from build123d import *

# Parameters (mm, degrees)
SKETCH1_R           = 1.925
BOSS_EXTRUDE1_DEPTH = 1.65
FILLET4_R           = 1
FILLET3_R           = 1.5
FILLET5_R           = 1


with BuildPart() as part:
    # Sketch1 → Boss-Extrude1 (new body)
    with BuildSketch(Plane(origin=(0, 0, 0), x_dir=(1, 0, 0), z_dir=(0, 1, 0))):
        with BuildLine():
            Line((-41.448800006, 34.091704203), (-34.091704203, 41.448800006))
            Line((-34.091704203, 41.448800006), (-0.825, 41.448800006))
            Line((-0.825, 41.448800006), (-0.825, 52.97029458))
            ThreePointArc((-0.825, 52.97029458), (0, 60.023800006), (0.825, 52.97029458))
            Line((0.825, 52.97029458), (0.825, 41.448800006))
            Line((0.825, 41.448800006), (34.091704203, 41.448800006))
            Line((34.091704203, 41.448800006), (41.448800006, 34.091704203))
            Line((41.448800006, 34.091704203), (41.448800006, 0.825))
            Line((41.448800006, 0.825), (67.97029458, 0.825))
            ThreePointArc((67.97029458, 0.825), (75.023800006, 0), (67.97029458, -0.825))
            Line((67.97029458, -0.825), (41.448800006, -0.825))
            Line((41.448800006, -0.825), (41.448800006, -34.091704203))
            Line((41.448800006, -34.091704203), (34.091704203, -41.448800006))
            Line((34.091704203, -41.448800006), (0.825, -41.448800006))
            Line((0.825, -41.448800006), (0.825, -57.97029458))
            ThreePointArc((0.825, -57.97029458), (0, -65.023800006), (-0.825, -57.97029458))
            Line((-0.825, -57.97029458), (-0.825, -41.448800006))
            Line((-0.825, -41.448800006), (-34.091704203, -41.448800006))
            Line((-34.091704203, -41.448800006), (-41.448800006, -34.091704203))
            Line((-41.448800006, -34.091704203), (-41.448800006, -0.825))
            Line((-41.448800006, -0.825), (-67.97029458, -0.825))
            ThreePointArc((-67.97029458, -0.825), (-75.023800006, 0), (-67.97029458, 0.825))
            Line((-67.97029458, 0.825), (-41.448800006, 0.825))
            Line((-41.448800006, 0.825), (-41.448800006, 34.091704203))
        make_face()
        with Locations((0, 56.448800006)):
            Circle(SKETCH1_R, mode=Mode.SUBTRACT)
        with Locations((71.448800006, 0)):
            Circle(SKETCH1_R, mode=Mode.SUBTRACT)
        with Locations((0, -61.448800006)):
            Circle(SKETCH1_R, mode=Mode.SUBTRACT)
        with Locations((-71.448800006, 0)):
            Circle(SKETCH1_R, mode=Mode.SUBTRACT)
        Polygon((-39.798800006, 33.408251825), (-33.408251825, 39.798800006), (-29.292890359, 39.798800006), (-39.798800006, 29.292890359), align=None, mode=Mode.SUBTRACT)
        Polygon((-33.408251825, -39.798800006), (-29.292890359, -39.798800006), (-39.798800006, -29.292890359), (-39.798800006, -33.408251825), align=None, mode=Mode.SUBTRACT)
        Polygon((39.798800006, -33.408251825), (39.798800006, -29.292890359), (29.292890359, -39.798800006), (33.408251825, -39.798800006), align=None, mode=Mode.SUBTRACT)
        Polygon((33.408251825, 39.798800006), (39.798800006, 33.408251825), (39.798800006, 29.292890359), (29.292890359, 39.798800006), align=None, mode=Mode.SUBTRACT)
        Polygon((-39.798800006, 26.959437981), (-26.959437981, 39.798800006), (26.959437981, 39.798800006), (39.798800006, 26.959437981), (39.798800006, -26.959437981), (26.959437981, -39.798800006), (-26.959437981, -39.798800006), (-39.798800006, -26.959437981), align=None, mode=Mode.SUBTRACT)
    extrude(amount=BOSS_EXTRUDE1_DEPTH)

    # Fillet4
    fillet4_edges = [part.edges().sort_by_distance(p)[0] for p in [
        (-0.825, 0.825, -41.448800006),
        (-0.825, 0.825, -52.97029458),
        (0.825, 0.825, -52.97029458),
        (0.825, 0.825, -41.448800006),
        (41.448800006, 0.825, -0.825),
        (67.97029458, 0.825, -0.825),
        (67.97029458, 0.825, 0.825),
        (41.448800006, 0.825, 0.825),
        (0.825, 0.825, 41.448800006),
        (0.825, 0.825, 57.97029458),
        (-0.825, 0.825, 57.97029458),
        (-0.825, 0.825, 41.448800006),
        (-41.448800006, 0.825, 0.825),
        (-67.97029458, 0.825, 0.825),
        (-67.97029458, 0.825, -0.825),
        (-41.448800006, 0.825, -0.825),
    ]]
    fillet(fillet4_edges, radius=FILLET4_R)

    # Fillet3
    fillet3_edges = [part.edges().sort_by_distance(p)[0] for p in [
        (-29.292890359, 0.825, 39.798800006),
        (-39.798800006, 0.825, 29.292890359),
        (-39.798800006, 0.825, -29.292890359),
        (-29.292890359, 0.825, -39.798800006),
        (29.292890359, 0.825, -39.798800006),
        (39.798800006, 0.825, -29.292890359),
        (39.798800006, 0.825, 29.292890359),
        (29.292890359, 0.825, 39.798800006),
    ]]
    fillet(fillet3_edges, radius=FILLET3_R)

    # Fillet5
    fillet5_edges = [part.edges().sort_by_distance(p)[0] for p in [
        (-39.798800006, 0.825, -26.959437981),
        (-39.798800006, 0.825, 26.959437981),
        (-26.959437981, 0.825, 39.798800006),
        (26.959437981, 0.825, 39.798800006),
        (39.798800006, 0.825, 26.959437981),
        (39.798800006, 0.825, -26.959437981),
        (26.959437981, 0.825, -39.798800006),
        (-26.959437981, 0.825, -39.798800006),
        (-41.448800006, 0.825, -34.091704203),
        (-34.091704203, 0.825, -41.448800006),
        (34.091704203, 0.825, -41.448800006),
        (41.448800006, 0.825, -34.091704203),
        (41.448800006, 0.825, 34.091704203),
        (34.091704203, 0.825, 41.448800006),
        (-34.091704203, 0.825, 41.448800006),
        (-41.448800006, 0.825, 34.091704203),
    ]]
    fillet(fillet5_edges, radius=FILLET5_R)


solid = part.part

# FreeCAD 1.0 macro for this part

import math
import FreeCAD as App
import Part
import Sketcher

V = App.Vector


def edges_at(feature, points):
    """Names of the edges that pass closest to the given points."""
    edges = feature.Shape.Edges
    near = lambda p: min(range(len(edges)), key=lambda i: edges[i].distToShape(Part.Vertex(*p))[0])
    return sorted({f"Edge{near(p) + 1}" for p in points})

doc = App.newDocument("Part")
params = doc.addObject("Spreadsheet::Sheet", "Params")
for row, (alias, value) in enumerate([
    ("sketch1_diameter", "3.85 mm"),
    ("pad1_length", "1.65 mm"),
    ("fillet_radius", "1 mm"),
    ("fillet2_radius", "1.5 mm"),
    ("fillet3_radius", "1 mm"),
], start=1):
    params.set(f"A{row}", alias)
    params.set(f"B{row}", "=" + value)
    params.setAlias(f"B{row}", alias)

body = doc.addObject("PartDesign::Body", "Body")

# Sketch on XZ plane
sketch1 = body.newObject("Sketcher::SketchObject", "Sketch")
sketch1.AttachmentSupport = (doc.getObject("XZ_Plane"), [""])
sketch1.MapMode = "FlatFace"
sketch1.addGeometry([
    Part.LineSegment(V(-34.1, -41.4, 0), V(-41.4, -34.1, 0)),  # 0
    Part.LineSegment(V(-41.4, -34.1, 0), V(-41.4, -0.8, 0)),  # 1
    Part.LineSegment(V(-41.4, -0.8, 0), V(-68, -0.8, 0)),  # 2
    Part.ArcOfCircle(Part.Circle(V(-71.4, 0, 0), V(0, 0, 1), 3.6), math.radians(13), math.radians(347)),  # 3
    Part.LineSegment(V(-68, 0.8, 0), V(-41.4, 0.8, 0)),  # 4
    Part.LineSegment(V(-41.4, 0.8, 0), V(-41.4, 34.1, 0)),  # 5
    Part.LineSegment(V(-41.4, 34.1, 0), V(-34.1, 41.4, 0)),  # 6
    Part.LineSegment(V(-34.1, 41.4, 0), V(-0.8, 41.4, 0)),  # 7
    Part.LineSegment(V(-0.8, 41.4, 0), V(-0.8, 58, 0)),  # 8
    Part.ArcOfCircle(Part.Circle(V(0, 61.4, 0), V(0, 0, 1), 3.6), math.radians(-77), math.radians(257)),  # 9
    Part.LineSegment(V(0.8, 58, 0), V(0.8, 41.4, 0)),  # 10
    Part.LineSegment(V(0.8, 41.4, 0), V(34.1, 41.4, 0)),  # 11
    Part.LineSegment(V(34.1, 41.4, 0), V(41.4, 34.1, 0)),  # 12
    Part.LineSegment(V(41.4, 34.1, 0), V(41.4, 0.8, 0)),  # 13
    Part.LineSegment(V(41.4, 0.8, 0), V(68, 0.8, 0)),  # 14
    Part.ArcOfCircle(Part.Circle(V(71.4, 0, 0), V(0, 0, 1), 3.6), math.radians(-167), math.radians(167)),  # 15
    Part.LineSegment(V(68, -0.8, 0), V(41.4, -0.8, 0)),  # 16
    Part.LineSegment(V(41.4, -0.8, 0), V(41.4, -34.1, 0)),  # 17
    Part.LineSegment(V(41.4, -34.1, 0), V(34.1, -41.4, 0)),  # 18
    Part.LineSegment(V(34.1, -41.4, 0), V(0.8, -41.4, 0)),  # 19
    Part.LineSegment(V(0.8, -41.4, 0), V(0.8, -53, 0)),  # 20
    Part.ArcOfCircle(Part.Circle(V(0, -56.4, 0), V(0, 0, 1), 3.6), math.radians(103), math.radians(437)),  # 21
    Part.LineSegment(V(-0.8, -53, 0), V(-0.8, -41.4, 0)),  # 22
    Part.LineSegment(V(-0.8, -41.4, 0), V(-34.1, -41.4, 0)),  # 23
    Part.Circle(V(0, 61.4, 0), V(0, 0, 1), 1.9),  # 24
    Part.LineSegment(V(39.8, 33.4, 0), V(33.4, 39.8, 0)),  # 25
    Part.LineSegment(V(33.4, 39.8, 0), V(29.3, 39.8, 0)),  # 26
    Part.LineSegment(V(29.3, 39.8, 0), V(39.8, 29.3, 0)),  # 27
    Part.LineSegment(V(39.8, 29.3, 0), V(39.8, 33.4, 0)),  # 28
    Part.LineSegment(V(-33.4, 39.8, 0), V(-39.8, 33.4, 0)),  # 29
    Part.LineSegment(V(-39.8, 33.4, 0), V(-39.8, 29.3, 0)),  # 30
    Part.LineSegment(V(-39.8, 29.3, 0), V(-29.3, 39.8, 0)),  # 31
    Part.LineSegment(V(-29.3, 39.8, 0), V(-33.4, 39.8, 0)),  # 32
    Part.Circle(V(71.4, 0, 0), V(0, 0, 1), 1.9),  # 33
    Part.LineSegment(V(-39.8, -27, 0), V(-27, -39.8, 0)),  # 34
    Part.LineSegment(V(-27, -39.8, 0), V(27, -39.8, 0)),  # 35
    Part.LineSegment(V(27, -39.8, 0), V(39.8, -27, 0)),  # 36
    Part.LineSegment(V(39.8, -27, 0), V(39.8, 27, 0)),  # 37
    Part.LineSegment(V(39.8, 27, 0), V(27, 39.8, 0)),  # 38
    Part.LineSegment(V(27, 39.8, 0), V(-27, 39.8, 0)),  # 39
    Part.LineSegment(V(-27, 39.8, 0), V(-39.8, 27, 0)),  # 40
    Part.LineSegment(V(-39.8, 27, 0), V(-39.8, -27, 0)),  # 41
    Part.LineSegment(V(33.4, -39.8, 0), V(39.8, -33.4, 0)),  # 42
    Part.LineSegment(V(39.8, -33.4, 0), V(39.8, -29.3, 0)),  # 43
    Part.LineSegment(V(39.8, -29.3, 0), V(29.3, -39.8, 0)),  # 44
    Part.LineSegment(V(29.3, -39.8, 0), V(33.4, -39.8, 0)),  # 45
    Part.Circle(V(0, -56.4, 0), V(0, 0, 1), 1.9),  # 46
    Part.Circle(V(-71.4, 0, 0), V(0, 0, 1), 1.9),  # 47
    Part.LineSegment(V(-39.8, -33.4, 0), V(-33.4, -39.8, 0)),  # 48
    Part.LineSegment(V(-33.4, -39.8, 0), V(-29.3, -39.8, 0)),  # 49
    Part.LineSegment(V(-29.3, -39.8, 0), V(-39.8, -29.3, 0)),  # 50
    Part.LineSegment(V(-39.8, -29.3, 0), V(-39.8, -33.4, 0)),  # 51
], False)
sketch1.addConstraint([
    Sketcher.Constraint("Coincident", 0, 2, 1, 1),
    Sketcher.Constraint("Coincident", 1, 2, 2, 1),
    Sketcher.Constraint("Coincident", 2, 2, 3, 2),
    Sketcher.Constraint("Coincident", 3, 1, 4, 1),
    Sketcher.Constraint("Coincident", 4, 2, 5, 1),
    Sketcher.Constraint("Coincident", 5, 2, 6, 1),
    Sketcher.Constraint("Coincident", 6, 2, 7, 1),
    Sketcher.Constraint("Coincident", 7, 2, 8, 1),
    Sketcher.Constraint("Coincident", 8, 2, 9, 2),
    Sketcher.Constraint("Coincident", 9, 1, 10, 1),
    Sketcher.Constraint("Coincident", 10, 2, 11, 1),
    Sketcher.Constraint("Coincident", 11, 2, 12, 1),
    Sketcher.Constraint("Coincident", 12, 2, 13, 1),
    Sketcher.Constraint("Coincident", 13, 2, 14, 1),
    Sketcher.Constraint("Coincident", 14, 2, 15, 2),
    Sketcher.Constraint("Coincident", 15, 1, 16, 1),
    Sketcher.Constraint("Coincident", 16, 2, 17, 1),
    Sketcher.Constraint("Coincident", 17, 2, 18, 1),
    Sketcher.Constraint("Coincident", 18, 2, 19, 1),
    Sketcher.Constraint("Coincident", 19, 2, 20, 1),
    Sketcher.Constraint("Coincident", 20, 2, 21, 2),
    Sketcher.Constraint("Coincident", 21, 1, 22, 1),
    Sketcher.Constraint("Coincident", 22, 2, 23, 1),
    Sketcher.Constraint("Coincident", 23, 2, 0, 1),
    Sketcher.Constraint("Coincident", 25, 2, 26, 1),
    Sketcher.Constraint("Coincident", 26, 2, 27, 1),
    Sketcher.Constraint("Coincident", 27, 2, 28, 1),
    Sketcher.Constraint("Coincident", 28, 2, 25, 1),
    Sketcher.Constraint("Coincident", 29, 2, 30, 1),
    Sketcher.Constraint("Coincident", 30, 2, 31, 1),
    Sketcher.Constraint("Coincident", 31, 2, 32, 1),
    Sketcher.Constraint("Coincident", 32, 2, 29, 1),
    Sketcher.Constraint("Coincident", 34, 2, 35, 1),
    Sketcher.Constraint("Coincident", 35, 2, 36, 1),
    Sketcher.Constraint("Coincident", 36, 2, 37, 1),
    Sketcher.Constraint("Coincident", 37, 2, 38, 1),
    Sketcher.Constraint("Coincident", 38, 2, 39, 1),
    Sketcher.Constraint("Coincident", 39, 2, 40, 1),
    Sketcher.Constraint("Coincident", 40, 2, 41, 1),
    Sketcher.Constraint("Coincident", 41, 2, 34, 1),
    Sketcher.Constraint("Coincident", 42, 2, 43, 1),
    Sketcher.Constraint("Coincident", 43, 2, 44, 1),
    Sketcher.Constraint("Coincident", 44, 2, 45, 1),
    Sketcher.Constraint("Coincident", 45, 2, 42, 1),
    Sketcher.Constraint("Coincident", 48, 2, 49, 1),
    Sketcher.Constraint("Coincident", 49, 2, 50, 1),
    Sketcher.Constraint("Coincident", 50, 2, 51, 1),
    Sketcher.Constraint("Coincident", 51, 2, 48, 1),
    Sketcher.Constraint("Vertical", 1),
    Sketcher.Constraint("Horizontal", 2),
    Sketcher.Constraint("Horizontal", 4),
    Sketcher.Constraint("Vertical", 5),
    Sketcher.Constraint("Horizontal", 7),
    Sketcher.Constraint("Vertical", 8),
    Sketcher.Constraint("Vertical", 10),
    Sketcher.Constraint("Horizontal", 11),
    Sketcher.Constraint("Vertical", 13),
    Sketcher.Constraint("Horizontal", 14),
    Sketcher.Constraint("Horizontal", 16),
    Sketcher.Constraint("Vertical", 17),
    Sketcher.Constraint("Horizontal", 19),
    Sketcher.Constraint("Vertical", 20),
    Sketcher.Constraint("Vertical", 22),
    Sketcher.Constraint("Horizontal", 23),
    Sketcher.Constraint("Horizontal", 26),
    Sketcher.Constraint("Vertical", 28),
    Sketcher.Constraint("Vertical", 30),
    Sketcher.Constraint("Horizontal", 32),
    Sketcher.Constraint("Horizontal", 35),
    Sketcher.Constraint("Vertical", 37),
    Sketcher.Constraint("Horizontal", 39),
    Sketcher.Constraint("Vertical", 41),
    Sketcher.Constraint("Vertical", 43),
    Sketcher.Constraint("Horizontal", 45),
    Sketcher.Constraint("Horizontal", 49),
    Sketcher.Constraint("Vertical", 51),
    Sketcher.Constraint("Coincident", 24, 3, 9, 3),
    Sketcher.Constraint("Coincident", 33, 3, 15, 3),
    Sketcher.Constraint("Coincident", 46, 3, 21, 3),
    Sketcher.Constraint("Coincident", 47, 3, 3, 3),
    Sketcher.Constraint("Equal", 3, 9),
    Sketcher.Constraint("Equal", 9, 15),
    Sketcher.Constraint("Equal", 15, 21),
    Sketcher.Constraint("Equal", 24, 33),
    Sketcher.Constraint("Equal", 33, 46),
    Sketcher.Constraint("Equal", 46, 47),
    Sketcher.Constraint("Symmetric", 3, 3, 15, 3, -1, 1),
    Sketcher.Constraint("Symmetric", 0, 2, 12, 2, -1, 1),
    Sketcher.Constraint("Symmetric", 4, 2, 16, 2, -1, 1),
    Sketcher.Constraint("Symmetric", 6, 2, 18, 2, -1, 1),
    Sketcher.Constraint("Symmetric", 10, 2, 22, 2, -1, 1),
    Sketcher.Constraint("Symmetric", 34, 2, 38, 2, -1, 1),
    Sketcher.Constraint("Symmetric", 36, 2, 40, 2, -1, 1),
    Sketcher.Constraint("Symmetric", 29, 2, 42, 2, -1, 1),
    Sketcher.Constraint("Symmetric", 31, 2, 44, 2, -1, 1),
    Sketcher.Constraint("Symmetric", 25, 2, 48, 2, -1, 1),
    Sketcher.Constraint("Symmetric", 27, 2, 50, 2, -1, 1),
    Sketcher.Constraint("Symmetric", 8, 2, 9, 1, -2),
    Sketcher.Constraint("Symmetric", 6, 2, 11, 2, -2),
    Sketcher.Constraint("Symmetric", 5, 2, 12, 2, -2),
    Sketcher.Constraint("Symmetric", 3, 1, 14, 2, -2),
    Sketcher.Constraint("Symmetric", 20, 2, 21, 1, -2),
    Sketcher.Constraint("Symmetric", 28, 2, 29, 2, -2),
    Sketcher.Constraint("Symmetric", 26, 2, 31, 2, -2),
    Sketcher.Constraint("Perpendicular", 0, 6),
    Sketcher.Constraint("Perpendicular", 6, 12),
    Sketcher.Constraint("Perpendicular", 12, 18),
    Sketcher.Constraint("Perpendicular", 18, 25),
    Sketcher.Constraint("Parallel", 25, 27),
    Sketcher.Constraint("Perpendicular", 27, 29),
    Sketcher.Constraint("Parallel", 29, 31),
    Sketcher.Constraint("Perpendicular", 31, 34),
    Sketcher.Constraint("Perpendicular", 34, 36),
    Sketcher.Constraint("Perpendicular", 36, 38),
    Sketcher.Constraint("Perpendicular", 38, 40),
    Sketcher.Constraint("Parallel", 40, 42),
    Sketcher.Constraint("Parallel", 42, 44),
    Sketcher.Constraint("Perpendicular", 44, 48),
    Sketcher.Constraint("Parallel", 48, 50),
    Sketcher.Constraint("Horizontal", 2, 2, 15, 1),
    Sketcher.Constraint("Horizontal", 32, 2, 38, 2),
    Sketcher.Constraint("Horizontal", 37, 2, 40, 2),
    Sketcher.Constraint("Vertical", 28, 2, 36, 2),
    Sketcher.Constraint("Equal", 23, 1),
    Sketcher.Constraint("Equal", 39, 37),
    Sketcher.Constraint("Diameter", 24, 3.85),
    Sketcher.Constraint("Radius", 3, 3.575),
    Sketcher.Constraint("DistanceX", 3, 3, 0, 2, 30.0),
    Sketcher.Constraint("DistanceY", 6, 2, 9, 3, 20.0),
    Sketcher.Constraint("DistanceY", 21, 3, 18, 2, 15.0),
    Sketcher.Constraint("DistanceY", 2, 2, 3, 1, 1.65),
    Sketcher.Constraint("DistanceX", 8, 2, 9, 1, 1.65),
    Sketcher.Constraint("DistanceY", 25, 2, 11, 2, 1.65),
    Sketcher.Constraint("Distance", 25, 9.0376),
    Sketcher.Constraint("Distance", 27, 14.8576),
    Sketcher.Constraint("Distance", 34, 18.1576),
    Sketcher.Constraint("DistanceX", 3, 3, -1, 1, 71.4488),
    Sketcher.Constraint("DistanceX", 7, 1, 7, 2, 33.266704),
])
sketch1.setExpression("Constraints[125]", "Params.sketch1_diameter")
pad1 = body.newObject("PartDesign::Pad", "Pad")
pad1.Profile = sketch1
pad1.setExpression("Length", "Params.pad1_length")
pad1.Reversed = True
doc.recompute()

fillet = body.newObject("PartDesign::Fillet", "Fillet")
fillet.Base = (pad1, edges_at(pad1, [
    (-0.825, 0.825, -41.449),
    (-0.825, 0.825, -52.97),
    (0.825, 0.825, -52.97),
    (0.825, 0.825, -41.449),
    (41.449, 0.825, -0.825),
    (67.97, 0.825, -0.825),
    (67.97, 0.825, 0.825),
    (41.449, 0.825, 0.825),
    (0.825, 0.825, 41.449),
    (0.825, 0.825, 57.97),
    (-0.825, 0.825, 57.97),
    (-0.825, 0.825, 41.449),
    (-41.449, 0.825, 0.825),
    (-67.97, 0.825, 0.825),
    (-67.97, 0.825, -0.825),
    (-41.449, 0.825, -0.825),
]))
fillet.setExpression("Radius", "Params.fillet_radius")
doc.recompute()

fillet2 = body.newObject("PartDesign::Fillet", "Fillet001")
fillet2.Base = (fillet, edges_at(fillet, [
    (-29.293, 0.825, 39.799),
    (-39.799, 0.825, 29.293),
    (-39.799, 0.825, -29.293),
    (-29.293, 0.825, -39.799),
    (29.293, 0.825, -39.799),
    (39.799, 0.825, -29.293),
    (39.799, 0.825, 29.293),
    (29.293, 0.825, 39.799),
]))
fillet2.setExpression("Radius", "Params.fillet2_radius")
doc.recompute()

fillet3 = body.newObject("PartDesign::Fillet", "Fillet002")
fillet3.Base = (fillet2, edges_at(fillet2, [
    (-39.799, 0.825, -26.959),
    (-39.799, 0.825, 26.959),
    (-26.959, 0.825, 39.799),
    (26.959, 0.825, 39.799),
    (39.799, 0.825, 26.959),
    (39.799, 0.825, -26.959),
    (26.959, 0.825, -39.799),
    (-26.959, 0.825, -39.799),
    (-41.449, 0.825, -34.092),
    (-34.092, 0.825, -41.449),
    (34.092, 0.825, -41.449),
    (41.449, 0.825, -34.092),
    (41.449, 0.825, 34.092),
    (34.092, 0.825, 41.449),
    (-34.092, 0.825, 41.449),
    (-41.449, 0.825, 34.092),
]))
fillet3.setExpression("Radius", "Params.fillet3_radius")

doc.recompute()
